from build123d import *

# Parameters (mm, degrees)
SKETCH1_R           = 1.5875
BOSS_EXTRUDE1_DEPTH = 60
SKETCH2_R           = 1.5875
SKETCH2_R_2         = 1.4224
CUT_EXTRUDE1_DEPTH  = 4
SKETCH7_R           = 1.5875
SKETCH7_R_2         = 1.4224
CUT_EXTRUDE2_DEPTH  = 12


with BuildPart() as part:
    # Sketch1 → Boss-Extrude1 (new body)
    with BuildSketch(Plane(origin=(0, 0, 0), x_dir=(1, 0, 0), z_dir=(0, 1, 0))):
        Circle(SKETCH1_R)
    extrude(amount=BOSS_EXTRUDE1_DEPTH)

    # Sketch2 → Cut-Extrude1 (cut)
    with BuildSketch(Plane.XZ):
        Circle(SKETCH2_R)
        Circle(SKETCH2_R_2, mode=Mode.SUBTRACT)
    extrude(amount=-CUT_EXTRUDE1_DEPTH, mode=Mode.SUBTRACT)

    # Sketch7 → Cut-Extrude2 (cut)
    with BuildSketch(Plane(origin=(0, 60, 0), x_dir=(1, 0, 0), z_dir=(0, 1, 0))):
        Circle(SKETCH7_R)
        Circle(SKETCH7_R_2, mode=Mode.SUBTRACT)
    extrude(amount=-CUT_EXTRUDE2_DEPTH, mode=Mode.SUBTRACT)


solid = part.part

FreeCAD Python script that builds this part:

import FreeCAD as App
import Part
import Sketcher
from FreeCAD import Vector

doc = App.newDocument("Part")
body = doc.addObject("PartDesign::Body", "Body")

sketch1 = body.newObject("Sketcher::SketchObject", "Sketch")
sketch1.AttachmentSupport = (doc.getObject("XZ_Plane"), [""])
sketch1.MapMode = "FlatFace"
sketch1.addGeometry(Part.Circle(Vector(0, 0, 0), Vector(0, 0, 1), 1.6), False)
sketch1.addConstraint(Sketcher.Constraint("Coincident", 0, 3, -1, 1))
sketch1.addConstraint(Sketcher.Constraint("Diameter", 0, 3.175))
pad1 = body.newObject("PartDesign::Pad", "Pad")
pad1.Profile = sketch1
pad1.Length = 60
pad1.Reversed = True

sketch2 = body.newObject("Sketcher::SketchObject", "Sketch001")
sketch2.AttachmentSupport = (doc.getObject("XZ_Plane"), [""])
sketch2.MapMode = "FlatFace"
sketch2.addGeometry(Part.Circle(Vector(0, 0, 0), Vector(0, 0, 1), 1.6), False)
sketch2.addGeometry(Part.Circle(Vector(0, 0, 0), Vector(0, 0, 1), 1.4), False)
sketch2.addConstraint(Sketcher.Constraint("Coincident", 0, 3, -1, 1))
sketch2.addConstraint(Sketcher.Constraint("Coincident", 1, 3, -1, 1))
sketch2.addConstraint(Sketcher.Constraint("Diameter", 0, 3.175))
sketch2.addConstraint(Sketcher.Constraint("Diameter", 1, 2.8448))
pocket1 = body.newObject("PartDesign::Pocket", "Pocket")
pocket1.Profile = sketch2
pocket1.Length = 4

sketch3 = body.newObject("Sketcher::SketchObject", "Sketch002")
sketch3.AttachmentSupport = (doc.getObject("XZ_Plane"), [""])
sketch3.MapMode = "FlatFace"
sketch3.AttachmentOffset = App.Placement(Vector(0, 0, -60), App.Rotation())
sketch3.addGeometry(Part.Circle(Vector(0, 0, 0), Vector(0, 0, 1), 1.6), False)
sketch3.addGeometry(Part.Circle(Vector(0, 0, 0), Vector(0, 0, 1), 1.4), False)
sketch3.addConstraint(Sketcher.Constraint("Coincident", 0, 3, -1, 1))
sketch3.addConstraint(Sketcher.Constraint("Coincident", 1, 3, -1, 1))
sketch3.addConstraint(Sketcher.Constraint("Diameter", 0, 3.175))
sketch3.addConstraint(Sketcher.Constraint("Diameter", 1, 2.8448))
pocket2 = body.newObject("PartDesign::Pocket", "Pocket001")
pocket2.Profile = sketch3
pocket2.Length = 12
pocket2.Reversed = True

doc.recompute()
